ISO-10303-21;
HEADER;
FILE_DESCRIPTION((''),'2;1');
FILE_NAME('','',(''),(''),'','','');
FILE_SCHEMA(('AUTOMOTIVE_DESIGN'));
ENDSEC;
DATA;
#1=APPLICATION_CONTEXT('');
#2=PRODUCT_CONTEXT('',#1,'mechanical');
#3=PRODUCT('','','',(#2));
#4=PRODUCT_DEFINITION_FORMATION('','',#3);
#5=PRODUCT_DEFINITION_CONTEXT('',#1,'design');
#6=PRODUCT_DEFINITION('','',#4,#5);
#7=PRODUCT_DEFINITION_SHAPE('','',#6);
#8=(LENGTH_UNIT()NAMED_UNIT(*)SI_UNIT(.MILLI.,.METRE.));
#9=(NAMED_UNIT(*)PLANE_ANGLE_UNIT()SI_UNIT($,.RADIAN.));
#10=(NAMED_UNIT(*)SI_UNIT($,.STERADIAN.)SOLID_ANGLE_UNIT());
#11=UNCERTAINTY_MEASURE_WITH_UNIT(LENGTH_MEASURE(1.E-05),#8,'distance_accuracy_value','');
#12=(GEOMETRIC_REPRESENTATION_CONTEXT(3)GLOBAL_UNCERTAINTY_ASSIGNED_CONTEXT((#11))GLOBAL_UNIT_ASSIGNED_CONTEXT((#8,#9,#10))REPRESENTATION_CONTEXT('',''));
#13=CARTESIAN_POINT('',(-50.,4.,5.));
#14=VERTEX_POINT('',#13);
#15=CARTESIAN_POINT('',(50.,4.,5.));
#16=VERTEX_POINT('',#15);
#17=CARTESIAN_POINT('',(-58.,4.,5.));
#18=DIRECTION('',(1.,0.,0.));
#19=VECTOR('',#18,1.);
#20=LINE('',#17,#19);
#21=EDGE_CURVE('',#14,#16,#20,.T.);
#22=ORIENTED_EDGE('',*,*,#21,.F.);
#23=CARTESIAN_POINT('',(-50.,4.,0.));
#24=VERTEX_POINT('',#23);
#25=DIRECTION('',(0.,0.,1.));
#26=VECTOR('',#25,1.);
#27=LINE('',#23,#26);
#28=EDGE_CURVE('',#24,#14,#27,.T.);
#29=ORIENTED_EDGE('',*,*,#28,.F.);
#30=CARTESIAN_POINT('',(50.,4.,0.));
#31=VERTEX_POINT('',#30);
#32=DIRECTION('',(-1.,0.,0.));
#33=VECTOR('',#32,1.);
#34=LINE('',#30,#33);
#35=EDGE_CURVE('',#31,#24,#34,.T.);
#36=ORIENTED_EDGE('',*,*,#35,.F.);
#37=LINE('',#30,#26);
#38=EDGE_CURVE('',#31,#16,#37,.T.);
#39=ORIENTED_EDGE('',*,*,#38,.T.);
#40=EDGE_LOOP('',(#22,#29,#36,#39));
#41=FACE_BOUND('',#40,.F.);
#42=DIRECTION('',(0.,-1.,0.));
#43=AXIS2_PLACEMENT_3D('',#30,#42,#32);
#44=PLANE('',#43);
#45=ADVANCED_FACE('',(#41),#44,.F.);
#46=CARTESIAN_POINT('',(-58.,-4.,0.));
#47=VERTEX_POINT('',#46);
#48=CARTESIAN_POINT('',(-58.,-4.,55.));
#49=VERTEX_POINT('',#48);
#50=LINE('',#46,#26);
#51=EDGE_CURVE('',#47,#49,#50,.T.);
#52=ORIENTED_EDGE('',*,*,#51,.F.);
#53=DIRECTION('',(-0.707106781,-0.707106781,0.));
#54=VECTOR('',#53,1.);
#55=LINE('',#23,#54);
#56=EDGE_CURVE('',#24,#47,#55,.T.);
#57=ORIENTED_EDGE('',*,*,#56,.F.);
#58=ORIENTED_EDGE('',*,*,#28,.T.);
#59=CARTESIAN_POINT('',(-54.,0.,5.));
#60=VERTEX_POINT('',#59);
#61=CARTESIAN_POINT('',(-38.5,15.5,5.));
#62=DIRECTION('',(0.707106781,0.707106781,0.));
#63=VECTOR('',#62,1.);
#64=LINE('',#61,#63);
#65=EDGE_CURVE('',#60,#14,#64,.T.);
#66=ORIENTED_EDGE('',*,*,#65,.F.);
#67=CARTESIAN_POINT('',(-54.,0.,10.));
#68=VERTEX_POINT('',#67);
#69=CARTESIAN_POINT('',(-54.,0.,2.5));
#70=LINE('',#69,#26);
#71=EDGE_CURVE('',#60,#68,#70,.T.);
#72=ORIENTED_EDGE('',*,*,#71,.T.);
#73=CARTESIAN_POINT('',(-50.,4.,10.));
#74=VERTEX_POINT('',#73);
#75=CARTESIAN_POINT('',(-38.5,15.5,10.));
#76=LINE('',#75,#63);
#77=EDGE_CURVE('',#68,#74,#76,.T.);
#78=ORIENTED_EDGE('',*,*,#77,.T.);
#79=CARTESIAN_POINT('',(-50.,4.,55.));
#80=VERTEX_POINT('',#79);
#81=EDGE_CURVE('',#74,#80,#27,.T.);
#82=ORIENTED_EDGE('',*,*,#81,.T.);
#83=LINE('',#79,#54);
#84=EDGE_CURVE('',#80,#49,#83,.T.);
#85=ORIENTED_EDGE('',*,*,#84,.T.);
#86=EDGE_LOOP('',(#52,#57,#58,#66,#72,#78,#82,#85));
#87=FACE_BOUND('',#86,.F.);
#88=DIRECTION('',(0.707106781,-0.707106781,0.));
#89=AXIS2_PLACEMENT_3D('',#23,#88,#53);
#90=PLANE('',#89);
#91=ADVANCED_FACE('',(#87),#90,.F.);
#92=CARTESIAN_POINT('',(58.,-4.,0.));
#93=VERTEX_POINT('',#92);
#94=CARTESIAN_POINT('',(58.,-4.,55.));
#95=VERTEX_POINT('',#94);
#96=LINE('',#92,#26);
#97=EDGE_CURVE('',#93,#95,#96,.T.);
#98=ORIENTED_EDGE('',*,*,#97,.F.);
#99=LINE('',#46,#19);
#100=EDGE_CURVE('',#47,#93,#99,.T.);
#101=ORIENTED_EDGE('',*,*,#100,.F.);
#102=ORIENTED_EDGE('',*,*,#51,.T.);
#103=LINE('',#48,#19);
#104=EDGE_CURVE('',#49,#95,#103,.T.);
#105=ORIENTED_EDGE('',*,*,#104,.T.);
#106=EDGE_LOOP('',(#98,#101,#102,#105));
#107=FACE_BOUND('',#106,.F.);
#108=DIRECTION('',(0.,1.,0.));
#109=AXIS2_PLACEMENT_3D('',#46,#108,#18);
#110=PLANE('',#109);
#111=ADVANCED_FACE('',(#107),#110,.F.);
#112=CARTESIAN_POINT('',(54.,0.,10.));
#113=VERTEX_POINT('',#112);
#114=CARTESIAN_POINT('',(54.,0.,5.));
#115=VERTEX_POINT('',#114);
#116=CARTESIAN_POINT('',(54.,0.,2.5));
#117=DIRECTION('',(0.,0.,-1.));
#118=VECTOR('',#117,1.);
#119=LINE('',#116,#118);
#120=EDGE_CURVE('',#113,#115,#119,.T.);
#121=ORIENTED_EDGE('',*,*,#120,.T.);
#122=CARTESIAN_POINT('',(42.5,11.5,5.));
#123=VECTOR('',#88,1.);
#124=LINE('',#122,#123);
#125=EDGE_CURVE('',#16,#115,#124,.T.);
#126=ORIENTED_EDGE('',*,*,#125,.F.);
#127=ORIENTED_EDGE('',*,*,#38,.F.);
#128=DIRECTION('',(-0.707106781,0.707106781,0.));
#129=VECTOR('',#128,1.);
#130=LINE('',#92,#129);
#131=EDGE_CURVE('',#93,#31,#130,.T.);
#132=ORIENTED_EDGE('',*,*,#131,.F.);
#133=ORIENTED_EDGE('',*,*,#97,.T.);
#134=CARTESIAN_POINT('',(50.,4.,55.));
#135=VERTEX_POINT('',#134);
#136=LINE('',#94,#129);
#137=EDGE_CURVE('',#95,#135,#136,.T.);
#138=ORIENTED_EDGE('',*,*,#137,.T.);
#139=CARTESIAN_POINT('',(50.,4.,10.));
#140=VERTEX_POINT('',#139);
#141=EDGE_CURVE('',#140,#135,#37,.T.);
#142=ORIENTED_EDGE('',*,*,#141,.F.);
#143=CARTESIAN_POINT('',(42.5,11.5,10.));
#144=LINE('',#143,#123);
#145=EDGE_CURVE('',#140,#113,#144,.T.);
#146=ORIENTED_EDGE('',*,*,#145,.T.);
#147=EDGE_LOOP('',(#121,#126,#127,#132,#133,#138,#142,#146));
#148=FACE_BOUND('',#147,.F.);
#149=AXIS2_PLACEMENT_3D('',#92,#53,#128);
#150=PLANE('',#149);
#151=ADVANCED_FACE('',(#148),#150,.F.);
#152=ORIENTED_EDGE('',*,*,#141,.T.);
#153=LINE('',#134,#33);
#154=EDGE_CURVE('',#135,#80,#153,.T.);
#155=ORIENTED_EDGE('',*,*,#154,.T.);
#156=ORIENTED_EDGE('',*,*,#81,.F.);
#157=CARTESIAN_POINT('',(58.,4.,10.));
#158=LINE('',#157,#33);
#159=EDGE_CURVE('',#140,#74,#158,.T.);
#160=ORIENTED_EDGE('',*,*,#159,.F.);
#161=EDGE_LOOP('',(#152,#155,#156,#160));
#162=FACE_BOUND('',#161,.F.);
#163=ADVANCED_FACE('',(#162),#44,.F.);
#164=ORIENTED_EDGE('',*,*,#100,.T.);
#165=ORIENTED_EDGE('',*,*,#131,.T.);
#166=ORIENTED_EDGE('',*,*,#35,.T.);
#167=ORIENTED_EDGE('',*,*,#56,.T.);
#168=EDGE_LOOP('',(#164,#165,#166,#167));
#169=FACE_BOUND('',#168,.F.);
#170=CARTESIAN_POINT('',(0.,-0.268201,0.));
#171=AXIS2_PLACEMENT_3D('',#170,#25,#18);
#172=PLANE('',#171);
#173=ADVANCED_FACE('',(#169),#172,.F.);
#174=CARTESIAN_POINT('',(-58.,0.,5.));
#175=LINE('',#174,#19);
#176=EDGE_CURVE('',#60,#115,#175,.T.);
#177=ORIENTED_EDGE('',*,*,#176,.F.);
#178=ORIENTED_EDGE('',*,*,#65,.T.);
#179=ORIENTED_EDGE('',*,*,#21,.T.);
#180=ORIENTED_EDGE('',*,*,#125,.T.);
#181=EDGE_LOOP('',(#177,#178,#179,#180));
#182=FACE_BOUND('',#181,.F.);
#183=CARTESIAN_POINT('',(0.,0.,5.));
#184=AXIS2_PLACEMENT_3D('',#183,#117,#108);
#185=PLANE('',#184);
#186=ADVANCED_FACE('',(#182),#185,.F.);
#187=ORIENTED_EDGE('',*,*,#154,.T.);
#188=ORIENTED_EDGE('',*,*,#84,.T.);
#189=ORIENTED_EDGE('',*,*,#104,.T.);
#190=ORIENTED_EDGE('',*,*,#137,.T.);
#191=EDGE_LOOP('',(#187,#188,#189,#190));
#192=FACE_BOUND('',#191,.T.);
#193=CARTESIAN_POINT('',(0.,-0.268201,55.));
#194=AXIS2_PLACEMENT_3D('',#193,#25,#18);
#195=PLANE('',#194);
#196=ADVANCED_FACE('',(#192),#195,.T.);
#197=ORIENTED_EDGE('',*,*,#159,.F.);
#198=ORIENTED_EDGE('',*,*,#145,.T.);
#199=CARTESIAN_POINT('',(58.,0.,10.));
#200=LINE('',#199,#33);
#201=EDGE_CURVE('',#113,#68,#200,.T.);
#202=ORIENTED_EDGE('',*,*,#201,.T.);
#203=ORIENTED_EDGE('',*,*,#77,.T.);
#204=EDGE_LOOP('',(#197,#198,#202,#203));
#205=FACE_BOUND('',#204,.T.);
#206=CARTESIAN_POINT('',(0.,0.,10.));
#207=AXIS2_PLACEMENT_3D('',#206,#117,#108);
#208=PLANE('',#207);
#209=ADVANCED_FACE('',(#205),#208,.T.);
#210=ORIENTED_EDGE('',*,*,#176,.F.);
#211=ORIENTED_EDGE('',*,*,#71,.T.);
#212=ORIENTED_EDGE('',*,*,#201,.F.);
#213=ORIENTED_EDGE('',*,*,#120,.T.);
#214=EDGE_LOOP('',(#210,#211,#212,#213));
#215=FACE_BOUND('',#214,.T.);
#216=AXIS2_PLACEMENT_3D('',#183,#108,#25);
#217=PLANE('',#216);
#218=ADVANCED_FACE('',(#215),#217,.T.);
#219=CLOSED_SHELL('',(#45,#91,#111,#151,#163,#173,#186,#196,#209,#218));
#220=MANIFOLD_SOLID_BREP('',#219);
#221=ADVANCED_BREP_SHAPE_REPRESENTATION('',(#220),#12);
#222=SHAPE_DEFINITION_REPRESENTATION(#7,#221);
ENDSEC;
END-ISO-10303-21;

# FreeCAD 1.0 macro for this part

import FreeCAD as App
import Part
import Sketcher
from FreeCAD import Vector


def add_polygon(sketch, points):
    """Adds a closed chain of lines whose ends are joined by coincident constraints."""
    first, n = sketch.GeometryCount, len(points)
    for a, b in zip(points, points[1:] + points[:1]):
        sketch.addGeometry(Part.LineSegment(App.Vector(*a, 0), App.Vector(*b, 0)), False)
    for i in range(n):
        sketch.addConstraint(Sketcher.Constraint("Coincident", first + i, 2, first + (i + 1) % n, 1))

doc = App.newDocument("Part")
body = doc.addObject("PartDesign::Body", "Body")

# Sketch on XY plane
sketch1 = body.newObject("Sketcher::SketchObject", "Sketch")
sketch1.AttachmentSupport = (doc.getObject("XY_Plane"), [""])
sketch1.MapMode = "FlatFace"
add_polygon(sketch1, [(-50, 4), (-58, -4), (58, -4), (50, 4)])  # lines 0-3
sketch1.addConstraint([
    Sketcher.Constraint("Horizontal", 1),
    Sketcher.Constraint("Horizontal", 3),
    Sketcher.Constraint("Perpendicular", 0, 2),
    Sketcher.Constraint("Equal", 0, 2),
    Sketcher.Constraint("DistanceX", 1, 1, 1, 2, 116.0),
    Sketcher.Constraint("DistanceX", 3, 2, 3, 1, 100.0),
    Sketcher.Constraint("DistanceX", 0, 2, -1, 1, 58.0),
    Sketcher.Constraint("DistanceY", 0, 2, -1, 1, 4.0),
])
pad1 = body.newObject("PartDesign::Pad", "Pad")
pad1.Profile = sketch1
pad1.Length = 55

# Sketch on YZ plane
sketch2 = body.newObject("Sketcher::SketchObject", "Sketch001")
sketch2.AttachmentSupport = (doc.getObject("YZ_Plane"), [""])
sketch2.MapMode = "FlatFace"
add_polygon(sketch2, [(0, 10), (0, 5), (4, 5), (4, 10)])  # lines 0-3
sketch2.addConstraint([
    Sketcher.Constraint("Vertical", 0),
    Sketcher.Constraint("Horizontal", 1),
    Sketcher.Constraint("Vertical", 2),
    Sketcher.Constraint("Horizontal", 3),
    Sketcher.Constraint("PointOnObject", 0, 2, -2),
    Sketcher.Constraint("DistanceX", 1, 1, 1, 2, 4.0),
    Sketcher.Constraint("DistanceY", 0, 2, 0, 1, 5.0),
    Sketcher.Constraint("DistanceY", -1, 1, 0, 2, 5.0),
])
pocket1 = body.newObject("PartDesign::Pocket", "Pocket")
pocket1.Profile = sketch2
pocket1.Length = 116
pocket1.Midplane = True

doc.recompute()
